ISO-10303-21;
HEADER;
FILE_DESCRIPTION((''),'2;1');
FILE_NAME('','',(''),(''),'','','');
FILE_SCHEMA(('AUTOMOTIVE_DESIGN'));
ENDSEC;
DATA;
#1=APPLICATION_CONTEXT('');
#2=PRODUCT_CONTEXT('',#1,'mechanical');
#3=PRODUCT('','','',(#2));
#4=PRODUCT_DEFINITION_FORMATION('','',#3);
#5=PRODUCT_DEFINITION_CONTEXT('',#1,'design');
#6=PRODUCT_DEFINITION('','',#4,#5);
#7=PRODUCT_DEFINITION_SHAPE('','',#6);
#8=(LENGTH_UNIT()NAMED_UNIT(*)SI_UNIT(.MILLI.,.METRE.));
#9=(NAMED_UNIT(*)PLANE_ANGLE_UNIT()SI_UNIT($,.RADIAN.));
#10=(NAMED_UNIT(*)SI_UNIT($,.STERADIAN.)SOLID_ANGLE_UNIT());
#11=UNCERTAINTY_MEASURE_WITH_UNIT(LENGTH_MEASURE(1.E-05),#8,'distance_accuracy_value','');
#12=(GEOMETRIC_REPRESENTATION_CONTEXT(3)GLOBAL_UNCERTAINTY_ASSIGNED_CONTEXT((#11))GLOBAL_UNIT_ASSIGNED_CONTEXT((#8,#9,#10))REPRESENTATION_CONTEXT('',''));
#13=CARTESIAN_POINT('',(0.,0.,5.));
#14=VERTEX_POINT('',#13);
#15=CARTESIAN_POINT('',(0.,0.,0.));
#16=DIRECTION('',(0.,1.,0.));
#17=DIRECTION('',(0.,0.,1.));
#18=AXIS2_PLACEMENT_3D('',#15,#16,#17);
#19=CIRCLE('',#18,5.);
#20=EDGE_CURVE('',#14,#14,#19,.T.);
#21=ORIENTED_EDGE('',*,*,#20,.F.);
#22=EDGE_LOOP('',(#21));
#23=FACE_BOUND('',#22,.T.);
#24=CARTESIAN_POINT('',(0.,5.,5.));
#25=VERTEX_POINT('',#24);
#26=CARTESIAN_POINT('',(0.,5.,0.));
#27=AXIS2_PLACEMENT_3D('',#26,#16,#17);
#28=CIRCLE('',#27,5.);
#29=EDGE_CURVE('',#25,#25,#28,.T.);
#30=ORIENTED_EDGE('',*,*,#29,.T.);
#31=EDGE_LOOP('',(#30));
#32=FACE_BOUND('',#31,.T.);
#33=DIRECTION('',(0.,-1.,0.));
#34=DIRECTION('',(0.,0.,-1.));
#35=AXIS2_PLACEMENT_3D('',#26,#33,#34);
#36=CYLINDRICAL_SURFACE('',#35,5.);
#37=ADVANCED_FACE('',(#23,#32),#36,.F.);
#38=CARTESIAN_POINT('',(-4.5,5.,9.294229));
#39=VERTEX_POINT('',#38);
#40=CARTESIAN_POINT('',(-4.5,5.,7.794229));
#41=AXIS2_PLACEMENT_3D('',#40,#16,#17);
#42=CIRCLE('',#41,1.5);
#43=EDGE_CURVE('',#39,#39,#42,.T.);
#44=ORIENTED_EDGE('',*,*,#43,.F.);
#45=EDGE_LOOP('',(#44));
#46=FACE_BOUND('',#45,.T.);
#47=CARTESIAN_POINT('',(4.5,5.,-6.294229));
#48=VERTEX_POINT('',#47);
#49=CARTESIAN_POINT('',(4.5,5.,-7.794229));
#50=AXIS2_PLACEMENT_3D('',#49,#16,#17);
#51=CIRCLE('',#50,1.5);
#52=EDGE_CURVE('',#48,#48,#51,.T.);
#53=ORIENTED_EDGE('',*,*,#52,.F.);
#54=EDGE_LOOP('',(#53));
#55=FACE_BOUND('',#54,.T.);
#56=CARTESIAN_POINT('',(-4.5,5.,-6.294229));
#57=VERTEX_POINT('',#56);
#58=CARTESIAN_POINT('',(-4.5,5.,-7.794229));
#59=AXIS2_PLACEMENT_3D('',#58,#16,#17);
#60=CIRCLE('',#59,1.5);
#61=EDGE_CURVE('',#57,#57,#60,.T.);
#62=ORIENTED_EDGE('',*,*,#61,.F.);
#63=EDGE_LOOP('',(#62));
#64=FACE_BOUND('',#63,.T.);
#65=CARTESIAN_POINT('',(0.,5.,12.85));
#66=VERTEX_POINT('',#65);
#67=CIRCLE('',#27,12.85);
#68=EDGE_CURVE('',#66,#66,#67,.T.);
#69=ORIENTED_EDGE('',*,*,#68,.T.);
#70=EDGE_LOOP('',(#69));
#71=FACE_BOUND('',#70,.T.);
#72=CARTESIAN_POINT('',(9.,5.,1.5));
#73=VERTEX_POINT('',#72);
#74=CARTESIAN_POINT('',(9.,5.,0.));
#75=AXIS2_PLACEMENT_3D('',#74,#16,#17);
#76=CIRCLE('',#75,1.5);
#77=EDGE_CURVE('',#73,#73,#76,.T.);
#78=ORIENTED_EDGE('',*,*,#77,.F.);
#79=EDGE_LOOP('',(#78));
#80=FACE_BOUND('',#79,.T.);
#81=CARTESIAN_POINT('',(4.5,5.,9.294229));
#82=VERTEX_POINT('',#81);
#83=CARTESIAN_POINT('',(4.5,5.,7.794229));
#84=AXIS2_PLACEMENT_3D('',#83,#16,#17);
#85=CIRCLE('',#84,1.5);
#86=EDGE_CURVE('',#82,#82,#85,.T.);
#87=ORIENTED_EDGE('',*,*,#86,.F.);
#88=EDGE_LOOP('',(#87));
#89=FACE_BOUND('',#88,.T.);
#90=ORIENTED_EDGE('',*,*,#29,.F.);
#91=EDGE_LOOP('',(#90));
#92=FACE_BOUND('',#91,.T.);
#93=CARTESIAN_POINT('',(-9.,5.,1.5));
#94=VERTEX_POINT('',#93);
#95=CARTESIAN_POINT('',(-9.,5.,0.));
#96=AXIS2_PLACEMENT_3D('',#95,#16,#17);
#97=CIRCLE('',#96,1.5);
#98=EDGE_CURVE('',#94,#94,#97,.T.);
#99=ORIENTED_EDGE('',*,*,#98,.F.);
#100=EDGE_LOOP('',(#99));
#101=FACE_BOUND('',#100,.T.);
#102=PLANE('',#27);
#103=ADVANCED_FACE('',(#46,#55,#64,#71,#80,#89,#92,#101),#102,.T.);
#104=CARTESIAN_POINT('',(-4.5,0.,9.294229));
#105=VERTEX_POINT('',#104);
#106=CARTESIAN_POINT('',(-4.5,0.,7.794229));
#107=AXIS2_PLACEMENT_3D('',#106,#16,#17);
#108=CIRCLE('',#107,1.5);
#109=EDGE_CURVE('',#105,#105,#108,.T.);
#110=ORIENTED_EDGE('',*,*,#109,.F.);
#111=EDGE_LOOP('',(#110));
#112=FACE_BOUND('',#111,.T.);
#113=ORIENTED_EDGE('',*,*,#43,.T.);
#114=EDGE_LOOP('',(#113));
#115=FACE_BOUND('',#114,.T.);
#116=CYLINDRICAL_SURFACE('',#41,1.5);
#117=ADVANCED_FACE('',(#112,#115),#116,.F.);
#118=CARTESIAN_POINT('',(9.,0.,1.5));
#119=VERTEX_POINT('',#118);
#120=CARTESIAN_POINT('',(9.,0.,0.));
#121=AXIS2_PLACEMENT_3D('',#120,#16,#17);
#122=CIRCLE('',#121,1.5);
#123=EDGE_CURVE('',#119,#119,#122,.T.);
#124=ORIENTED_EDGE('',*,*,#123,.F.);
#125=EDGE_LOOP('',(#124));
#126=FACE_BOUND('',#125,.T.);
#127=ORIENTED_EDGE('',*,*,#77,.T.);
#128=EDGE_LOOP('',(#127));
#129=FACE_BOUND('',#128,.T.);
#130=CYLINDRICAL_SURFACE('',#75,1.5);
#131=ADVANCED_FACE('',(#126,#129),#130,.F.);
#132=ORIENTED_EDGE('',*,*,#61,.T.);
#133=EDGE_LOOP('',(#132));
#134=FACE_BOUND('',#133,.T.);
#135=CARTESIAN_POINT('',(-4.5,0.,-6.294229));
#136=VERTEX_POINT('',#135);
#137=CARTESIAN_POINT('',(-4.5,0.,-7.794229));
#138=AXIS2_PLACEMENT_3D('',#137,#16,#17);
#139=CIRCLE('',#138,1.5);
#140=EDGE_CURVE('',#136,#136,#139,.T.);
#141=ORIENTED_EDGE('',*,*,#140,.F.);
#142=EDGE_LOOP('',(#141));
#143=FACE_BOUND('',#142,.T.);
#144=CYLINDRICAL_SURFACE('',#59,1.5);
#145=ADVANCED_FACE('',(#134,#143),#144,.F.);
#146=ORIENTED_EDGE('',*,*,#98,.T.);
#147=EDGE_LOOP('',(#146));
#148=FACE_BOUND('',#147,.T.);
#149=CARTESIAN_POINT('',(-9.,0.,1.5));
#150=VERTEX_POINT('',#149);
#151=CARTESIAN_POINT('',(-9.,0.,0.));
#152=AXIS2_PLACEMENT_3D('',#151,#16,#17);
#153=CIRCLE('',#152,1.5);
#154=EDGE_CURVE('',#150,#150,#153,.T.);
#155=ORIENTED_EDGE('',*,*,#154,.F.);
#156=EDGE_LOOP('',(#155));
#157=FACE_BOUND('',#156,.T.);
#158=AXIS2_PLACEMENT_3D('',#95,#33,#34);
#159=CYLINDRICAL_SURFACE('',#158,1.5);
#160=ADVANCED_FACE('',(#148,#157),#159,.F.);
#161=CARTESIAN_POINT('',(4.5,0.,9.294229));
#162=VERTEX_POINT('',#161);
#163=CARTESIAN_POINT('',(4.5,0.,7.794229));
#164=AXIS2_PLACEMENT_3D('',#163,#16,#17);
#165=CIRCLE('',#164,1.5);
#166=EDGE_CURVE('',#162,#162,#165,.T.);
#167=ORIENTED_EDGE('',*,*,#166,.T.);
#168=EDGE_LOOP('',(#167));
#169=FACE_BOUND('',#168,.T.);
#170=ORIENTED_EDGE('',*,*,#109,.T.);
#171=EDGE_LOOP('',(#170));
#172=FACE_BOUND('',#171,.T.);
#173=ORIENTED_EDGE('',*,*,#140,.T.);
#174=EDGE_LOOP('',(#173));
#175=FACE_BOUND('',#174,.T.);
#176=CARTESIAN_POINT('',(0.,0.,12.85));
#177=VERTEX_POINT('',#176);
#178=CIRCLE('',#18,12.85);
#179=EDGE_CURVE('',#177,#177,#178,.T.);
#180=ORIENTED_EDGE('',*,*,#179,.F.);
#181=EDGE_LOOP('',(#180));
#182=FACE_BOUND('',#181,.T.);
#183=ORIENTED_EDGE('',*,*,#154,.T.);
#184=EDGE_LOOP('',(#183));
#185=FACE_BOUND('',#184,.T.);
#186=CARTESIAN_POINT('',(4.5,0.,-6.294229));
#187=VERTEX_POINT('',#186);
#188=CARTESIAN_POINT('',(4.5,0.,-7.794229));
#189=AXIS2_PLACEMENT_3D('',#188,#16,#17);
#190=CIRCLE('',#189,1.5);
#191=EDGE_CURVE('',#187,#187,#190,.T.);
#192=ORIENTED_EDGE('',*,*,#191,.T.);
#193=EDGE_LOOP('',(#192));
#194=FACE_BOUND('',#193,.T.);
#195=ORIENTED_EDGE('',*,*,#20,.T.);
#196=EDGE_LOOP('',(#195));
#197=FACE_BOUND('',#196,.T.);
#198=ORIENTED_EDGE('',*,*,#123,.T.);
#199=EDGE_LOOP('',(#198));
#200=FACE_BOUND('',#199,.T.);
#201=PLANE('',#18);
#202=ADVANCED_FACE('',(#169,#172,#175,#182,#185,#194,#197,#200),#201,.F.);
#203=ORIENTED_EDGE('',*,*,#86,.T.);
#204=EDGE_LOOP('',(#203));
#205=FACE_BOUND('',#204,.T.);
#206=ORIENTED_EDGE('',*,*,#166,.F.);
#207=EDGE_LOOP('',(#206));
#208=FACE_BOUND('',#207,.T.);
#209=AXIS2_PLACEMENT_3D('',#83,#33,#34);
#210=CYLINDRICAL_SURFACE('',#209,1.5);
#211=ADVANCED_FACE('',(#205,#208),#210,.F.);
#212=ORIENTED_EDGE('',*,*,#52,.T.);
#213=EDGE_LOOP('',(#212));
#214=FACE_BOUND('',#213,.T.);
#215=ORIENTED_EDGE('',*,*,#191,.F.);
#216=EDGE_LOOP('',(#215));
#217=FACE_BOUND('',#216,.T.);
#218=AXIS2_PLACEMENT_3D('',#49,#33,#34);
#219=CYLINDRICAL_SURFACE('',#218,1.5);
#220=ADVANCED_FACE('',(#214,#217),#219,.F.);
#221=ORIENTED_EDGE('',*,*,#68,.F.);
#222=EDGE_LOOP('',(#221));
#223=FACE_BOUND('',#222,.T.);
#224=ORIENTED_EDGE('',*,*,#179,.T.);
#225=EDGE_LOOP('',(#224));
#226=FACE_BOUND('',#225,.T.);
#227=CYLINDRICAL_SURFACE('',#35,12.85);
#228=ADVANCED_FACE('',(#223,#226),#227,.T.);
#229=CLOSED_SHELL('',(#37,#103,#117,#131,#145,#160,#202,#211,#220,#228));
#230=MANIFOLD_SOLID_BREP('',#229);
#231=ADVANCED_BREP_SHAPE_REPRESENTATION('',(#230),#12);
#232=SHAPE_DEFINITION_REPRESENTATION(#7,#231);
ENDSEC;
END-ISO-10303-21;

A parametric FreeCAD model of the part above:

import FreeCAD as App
import Part
import Sketcher
from FreeCAD import Vector

doc = App.newDocument("Part")
body = doc.addObject("PartDesign::Body", "Body")

sketch1 = doc.addObject("Sketcher::SketchObject", "Sketch")
body.addObject(sketch1)
sketch1.AttachmentSupport = (doc.XZ_Plane, [""])
sketch1.MapMode = "FlatFace"
sketch1.addGeometry(Part.Circle(Vector(0, 0, 0), Vector(0, 0, 1), 12.8), False)
sketch1.addGeometry(Part.Circle(Vector(-9, 0, 0), Vector(0, 0, 1), 1.5), False)
sketch1.addGeometry(Part.Circle(Vector(4.5, -7.8, 0), Vector(0, 0, 1), 1.5), False)
sketch1.addGeometry(Part.Circle(Vector(0, 0, 0), Vector(0, 0, 1), 5), False)
sketch1.addGeometry(Part.Circle(Vector(4.5, 7.8, 0), Vector(0, 0, 1), 1.5), False)
sketch1.addConstraint(Sketcher.Constraint("Coincident", 0, 3, -1, 1))
sketch1.addConstraint(Sketcher.Constraint("Coincident", 3, 3, -1, 1))
sketch1.addConstraint(Sketcher.Constraint("Equal", 1, 2))
sketch1.addConstraint(Sketcher.Constraint("Equal", 2, 4))
sketch1.addConstraint(Sketcher.Constraint("Symmetric", 2, 3, 4, 3, -1))
sketch1.addConstraint(Sketcher.Constraint("PointOnObject", 1, 3, -1))
sketch1.addConstraint(Sketcher.Constraint("Diameter", 1, 3.0))
sketch1.addConstraint(Sketcher.Constraint("Diameter", 3, 10.0))
sketch1.addConstraint(Sketcher.Constraint("Diameter", 0, 25.7))
sketch1.addConstraint(Sketcher.Constraint("DistanceX", 1, 3, -1, 1, 9.0))
sketch1.addConstraint(Sketcher.Constraint("DistanceX", -1, 1, 2, 3, 4.5))
sketch1.addConstraint(Sketcher.Constraint("DistanceY", 2, 3, -1, 1, 7.794229))
pad1 = doc.addObject("PartDesign::Pad", "Pad")
body.addObject(pad1)
pad1.Profile = sketch1
pad1.Length = 5
pad1.Reversed = True

sketch2 = doc.addObject("Sketcher::SketchObject", "Sketch001")
body.addObject(sketch2)
sketch2.AttachmentSupport = (doc.XZ_Plane, [""])
sketch2.MapMode = "FlatFace"
sketch2.AttachmentOffset = App.Placement(Vector(0, 0, -5), App.Rotation())
sketch2.addGeometry(Part.Circle(Vector(9, 0, 0), Vector(0, 0, 1), 1.5), False)
sketch2.addGeometry(Part.Circle(Vector(-4.5, -7.8, 0), Vector(0, 0, 1), 1.5), False)
sketch2.addGeometry(Part.Circle(Vector(-4.5, 7.8, 0), Vector(0, 0, 1), 1.5), False)
sketch2.addConstraint(Sketcher.Constraint("Equal", 0, 1))
sketch2.addConstraint(Sketcher.Constraint("Equal", 1, 2))
sketch2.addConstraint(Sketcher.Constraint("Symmetric", 1, 3, 2, 3, -1))
sketch2.addConstraint(Sketcher.Constraint("PointOnObject", 0, 3, -1))
sketch2.addConstraint(Sketcher.Constraint("Diameter", 0, 3.0))
sketch2.addConstraint(Sketcher.Constraint("DistanceX", -1, 1, 0, 3, 9.0))
sketch2.addConstraint(Sketcher.Constraint("DistanceX", 1, 3, -1, 1, 4.5))
sketch2.addConstraint(Sketcher.Constraint("DistanceY", 1, 3, -1, 1, 7.794229))
doc.recompute()
hole = doc.addObject("PartDesign::Hole", "Hole")
body.addObject(hole)
hole.Profile = sketch2
hole.ThreadType = "None"
hole.Diameter = 3
hole.DepthType = "ThroughAll"
hole.Reversed = True

doc.recompute()
